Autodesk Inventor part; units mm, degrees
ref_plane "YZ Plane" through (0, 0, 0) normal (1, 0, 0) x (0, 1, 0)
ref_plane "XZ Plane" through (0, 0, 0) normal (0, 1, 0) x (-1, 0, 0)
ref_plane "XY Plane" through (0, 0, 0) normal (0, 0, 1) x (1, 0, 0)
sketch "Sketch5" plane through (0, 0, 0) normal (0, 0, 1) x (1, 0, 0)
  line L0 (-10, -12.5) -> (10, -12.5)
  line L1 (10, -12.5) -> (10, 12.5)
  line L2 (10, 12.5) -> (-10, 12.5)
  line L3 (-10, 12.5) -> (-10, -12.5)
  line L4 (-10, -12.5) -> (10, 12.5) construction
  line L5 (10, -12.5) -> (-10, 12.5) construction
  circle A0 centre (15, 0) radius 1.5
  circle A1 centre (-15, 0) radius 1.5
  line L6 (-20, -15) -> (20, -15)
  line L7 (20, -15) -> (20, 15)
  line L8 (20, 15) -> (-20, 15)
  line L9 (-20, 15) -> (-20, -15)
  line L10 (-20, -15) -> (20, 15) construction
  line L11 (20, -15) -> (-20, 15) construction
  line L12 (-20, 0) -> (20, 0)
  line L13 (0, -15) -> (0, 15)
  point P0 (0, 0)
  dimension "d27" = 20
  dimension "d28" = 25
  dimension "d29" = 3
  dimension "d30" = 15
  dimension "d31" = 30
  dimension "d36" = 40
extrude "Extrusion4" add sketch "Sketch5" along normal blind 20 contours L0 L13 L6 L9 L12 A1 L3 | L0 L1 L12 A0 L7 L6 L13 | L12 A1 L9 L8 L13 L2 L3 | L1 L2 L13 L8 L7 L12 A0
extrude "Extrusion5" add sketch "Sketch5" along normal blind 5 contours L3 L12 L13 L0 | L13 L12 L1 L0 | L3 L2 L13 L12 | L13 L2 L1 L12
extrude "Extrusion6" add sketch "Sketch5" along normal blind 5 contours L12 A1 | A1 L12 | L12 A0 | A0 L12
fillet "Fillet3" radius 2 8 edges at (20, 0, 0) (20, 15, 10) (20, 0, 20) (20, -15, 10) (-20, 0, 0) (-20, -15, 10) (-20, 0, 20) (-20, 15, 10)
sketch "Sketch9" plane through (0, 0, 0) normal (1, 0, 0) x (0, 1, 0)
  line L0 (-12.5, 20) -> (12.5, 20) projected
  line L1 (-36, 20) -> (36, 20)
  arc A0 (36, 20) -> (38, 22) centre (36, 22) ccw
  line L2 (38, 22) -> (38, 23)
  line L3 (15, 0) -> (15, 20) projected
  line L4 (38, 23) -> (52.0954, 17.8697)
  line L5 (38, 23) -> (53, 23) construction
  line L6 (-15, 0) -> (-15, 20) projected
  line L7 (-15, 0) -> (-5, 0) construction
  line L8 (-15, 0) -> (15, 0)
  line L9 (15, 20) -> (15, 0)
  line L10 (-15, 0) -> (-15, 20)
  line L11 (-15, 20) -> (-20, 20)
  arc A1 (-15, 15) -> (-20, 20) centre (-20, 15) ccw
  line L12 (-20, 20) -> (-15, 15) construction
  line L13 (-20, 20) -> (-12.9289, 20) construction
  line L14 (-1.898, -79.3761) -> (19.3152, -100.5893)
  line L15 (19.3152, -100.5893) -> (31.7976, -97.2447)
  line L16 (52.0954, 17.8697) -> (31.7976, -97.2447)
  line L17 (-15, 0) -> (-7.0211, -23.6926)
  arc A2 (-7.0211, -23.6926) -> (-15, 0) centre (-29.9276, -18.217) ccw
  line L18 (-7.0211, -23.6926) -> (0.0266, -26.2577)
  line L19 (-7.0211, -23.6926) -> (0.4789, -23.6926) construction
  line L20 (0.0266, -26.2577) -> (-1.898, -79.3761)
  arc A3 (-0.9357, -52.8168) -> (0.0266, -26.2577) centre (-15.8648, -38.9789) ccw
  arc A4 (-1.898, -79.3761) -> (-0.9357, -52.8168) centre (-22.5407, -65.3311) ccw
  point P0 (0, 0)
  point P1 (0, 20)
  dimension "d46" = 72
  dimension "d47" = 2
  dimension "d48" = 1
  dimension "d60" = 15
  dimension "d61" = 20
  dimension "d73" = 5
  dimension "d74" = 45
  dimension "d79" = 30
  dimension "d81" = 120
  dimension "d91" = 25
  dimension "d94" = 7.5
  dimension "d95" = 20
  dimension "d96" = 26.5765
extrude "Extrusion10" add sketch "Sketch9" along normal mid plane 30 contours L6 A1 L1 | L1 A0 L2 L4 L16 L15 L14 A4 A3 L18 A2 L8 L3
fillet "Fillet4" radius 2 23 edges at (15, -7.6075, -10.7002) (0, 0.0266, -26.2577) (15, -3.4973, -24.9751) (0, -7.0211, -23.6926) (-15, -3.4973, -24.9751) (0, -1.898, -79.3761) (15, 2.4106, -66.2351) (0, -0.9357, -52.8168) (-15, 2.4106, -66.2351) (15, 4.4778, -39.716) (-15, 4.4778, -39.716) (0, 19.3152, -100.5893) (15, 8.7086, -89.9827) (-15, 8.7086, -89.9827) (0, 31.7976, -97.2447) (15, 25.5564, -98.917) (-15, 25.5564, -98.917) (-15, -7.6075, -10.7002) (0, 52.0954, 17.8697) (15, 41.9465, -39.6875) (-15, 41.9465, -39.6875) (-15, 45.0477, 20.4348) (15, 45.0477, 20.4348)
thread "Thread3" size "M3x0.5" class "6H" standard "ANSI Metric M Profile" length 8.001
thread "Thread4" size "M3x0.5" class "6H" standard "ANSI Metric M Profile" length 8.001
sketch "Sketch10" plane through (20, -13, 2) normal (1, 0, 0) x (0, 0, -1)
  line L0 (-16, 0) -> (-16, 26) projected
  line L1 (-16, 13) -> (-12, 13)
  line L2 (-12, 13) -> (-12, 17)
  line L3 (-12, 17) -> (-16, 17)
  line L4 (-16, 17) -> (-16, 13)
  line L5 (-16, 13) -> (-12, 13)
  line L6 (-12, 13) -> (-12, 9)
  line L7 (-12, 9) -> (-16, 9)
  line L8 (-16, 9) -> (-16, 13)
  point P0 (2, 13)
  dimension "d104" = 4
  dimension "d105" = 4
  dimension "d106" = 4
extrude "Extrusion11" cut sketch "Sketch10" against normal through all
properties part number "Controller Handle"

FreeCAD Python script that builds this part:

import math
import FreeCAD as App
import Part
import Sketcher
from FreeCAD import Vector
Q = App.Units.Quantity


def edges_at(feature, points):
    """Names of the edges that pass closest to the given points."""
    edges = feature.Shape.Edges
    near = lambda p: min(range(len(edges)), key=lambda i: edges[i].distToShape(Part.Vertex(*p))[0])
    return sorted({f"Edge{near(p) + 1}" for p in points})

doc = App.newDocument("Part")
params = doc.addObject("Spreadsheet::Sheet", "Params")
for row, (alias, value) in enumerate([
    ("sketch1_diameter", "3 mm"),
    ("sketch1_width", "40 mm"),
    ("sketch1_width2", "20 mm"),
    ("sketch1_height", "30 mm"),
    ("sketch1_height2", "25 mm"),
    ("pad1_length", "20 mm"),
    ("sketch2_width", "20 mm"),
    ("sketch2_height", "25 mm"),
    ("pad2_length", "5 mm"),
    ("sketch3_diameter", "3 mm"),
    ("pad3_length", "5 mm"),
    ("fillet_radius", "2 mm"),
    ("sketch4_radius", "5 mm"),
    ("sketch4_radius2", "2 mm"),
    ("sketch4_width", "30 mm"),
    ("sketch4_height", "20 mm"),
    ("sketch4_height2", "1 mm"),
    ("pad4_length", "30 mm"),
    ("fillet2_radius", "2 mm"),
    ("sketch5_height", "4 mm"),
], start=1):
    params.set(f"A{row}", alias)
    params.set(f"B{row}", "=" + value)
    params.setAlias(f"B{row}", alias)

body = doc.addObject("PartDesign::Body", "Body")

# Sketch on XY plane
sketch1 = body.newObject("Sketcher::SketchObject", "Sketch")
sketch1.AttachmentSupport = (doc.getObject("XY_Plane"), [""])
sketch1.MapMode = "FlatFace"
sketch1.addGeometry(Part.LineSegment(Vector(-20, -15, 0), Vector(20, -15, 0)), False)
sketch1.addGeometry(Part.LineSegment(Vector(20, -15, 0), Vector(20, 15, 0)), False)
sketch1.addGeometry(Part.LineSegment(Vector(20, 15, 0), Vector(-20, 15, 0)), False)
sketch1.addGeometry(Part.LineSegment(Vector(-20, 15, 0), Vector(-20, -15, 0)), False)
sketch1.addGeometry(Part.LineSegment(Vector(-10, -12.5, 0), Vector(-10, 12.5, 0)), False)
sketch1.addGeometry(Part.LineSegment(Vector(-10, 12.5, 0), Vector(10, 12.5, 0)), False)
sketch1.addGeometry(Part.LineSegment(Vector(10, 12.5, 0), Vector(10, -12.5, 0)), False)
sketch1.addGeometry(Part.LineSegment(Vector(10, -12.5, 0), Vector(-10, -12.5, 0)), False)
sketch1.addGeometry(Part.Circle(Vector(-15, 0, 0), Vector(0, 0, 1), 1.5), False)
sketch1.addGeometry(Part.Circle(Vector(15, 0, 0), Vector(0, 0, 1), 1.5), False)
sketch1.addConstraint(Sketcher.Constraint("Coincident", 0, 2, 1, 1))
sketch1.addConstraint(Sketcher.Constraint("Coincident", 1, 2, 2, 1))
sketch1.addConstraint(Sketcher.Constraint("Coincident", 2, 2, 3, 1))
sketch1.addConstraint(Sketcher.Constraint("Coincident", 3, 2, 0, 1))
sketch1.addConstraint(Sketcher.Constraint("Coincident", 4, 2, 5, 1))
sketch1.addConstraint(Sketcher.Constraint("Coincident", 5, 2, 6, 1))
sketch1.addConstraint(Sketcher.Constraint("Coincident", 6, 2, 7, 1))
sketch1.addConstraint(Sketcher.Constraint("Coincident", 7, 2, 4, 1))
sketch1.addConstraint(Sketcher.Constraint("Horizontal", 0))
sketch1.addConstraint(Sketcher.Constraint("Vertical", 1))
sketch1.addConstraint(Sketcher.Constraint("Horizontal", 2))
sketch1.addConstraint(Sketcher.Constraint("Vertical", 3))
sketch1.addConstraint(Sketcher.Constraint("Vertical", 4))
sketch1.addConstraint(Sketcher.Constraint("Horizontal", 5))
sketch1.addConstraint(Sketcher.Constraint("Vertical", 6))
sketch1.addConstraint(Sketcher.Constraint("Horizontal", 7))
sketch1.addConstraint(Sketcher.Constraint("Equal", 8, 9))
sketch1.addConstraint(Sketcher.Constraint("Symmetric", 8, 3, 9, 3, -1, 1))
sketch1.addConstraint(Sketcher.Constraint("Symmetric", 0, 2, 2, 2, -1, 1))
sketch1.addConstraint(Sketcher.Constraint("Symmetric", 4, 2, 6, 2, -1, 1))
sketch1.addConstraint(Sketcher.Constraint("PointOnObject", 8, 3, -1))
sketch1.addConstraint(Sketcher.Constraint("Diameter", 8, Q("3 mm")))
sketch1.addConstraint(Sketcher.Constraint("DistanceX", 0, 1, 0, 2, Q("40 mm")))
sketch1.addConstraint(Sketcher.Constraint("DistanceX", 5, 1, 5, 2, Q("20 mm")))
sketch1.addConstraint(Sketcher.Constraint("DistanceY", 1, 1, 1, 2, Q("30 mm")))
sketch1.addConstraint(Sketcher.Constraint("DistanceY", 4, 1, 4, 2, Q("25 mm")))
sketch1.addConstraint(Sketcher.Constraint("DistanceX", 8, 3, -1, 1, Q("15 mm")))
sketch1.setExpression("Constraints[21]", "Params.sketch1_diameter")
sketch1.setExpression("Constraints[22]", "Params.sketch1_width")
sketch1.setExpression("Constraints[23]", "Params.sketch1_width2")
sketch1.setExpression("Constraints[24]", "Params.sketch1_height")
sketch1.setExpression("Constraints[25]", "Params.sketch1_height2")
pad1 = body.newObject("PartDesign::Pad", "Pad")
pad1.Profile = sketch1
pad1.setExpression("Length", "Params.pad1_length")

# Sketch on XY plane
sketch2 = body.newObject("Sketcher::SketchObject", "Sketch001")
sketch2.AttachmentSupport = (doc.getObject("XY_Plane"), [""])
sketch2.MapMode = "FlatFace"
sketch2.addGeometry(Part.LineSegment(Vector(-10, -12, 0), Vector(10, -12, 0)), False)
sketch2.addGeometry(Part.LineSegment(Vector(10, -12, 0), Vector(10, 12, 0)), False)
sketch2.addGeometry(Part.LineSegment(Vector(10, 12, 0), Vector(-10, 12, 0)), False)
sketch2.addGeometry(Part.LineSegment(Vector(-10, 12, 0), Vector(-10, -12, 0)), False)
sketch2.addConstraint(Sketcher.Constraint("Coincident", 0, 2, 1, 1))
sketch2.addConstraint(Sketcher.Constraint("Coincident", 1, 2, 2, 1))
sketch2.addConstraint(Sketcher.Constraint("Coincident", 2, 2, 3, 1))
sketch2.addConstraint(Sketcher.Constraint("Coincident", 3, 2, 0, 1))
sketch2.addConstraint(Sketcher.Constraint("Horizontal", 0))
sketch2.addConstraint(Sketcher.Constraint("Vertical", 1))
sketch2.addConstraint(Sketcher.Constraint("Horizontal", 2))
sketch2.addConstraint(Sketcher.Constraint("Vertical", 3))
sketch2.addConstraint(Sketcher.Constraint("Symmetric", 0, 2, 2, 2, -1, 1))
sketch2.addConstraint(Sketcher.Constraint("DistanceX", 0, 1, 0, 2, Q("20 mm")))
sketch2.addConstraint(Sketcher.Constraint("DistanceY", 1, 1, 1, 2, Q("25 mm")))
sketch2.setExpression("Constraints[9]", "Params.sketch2_width")
sketch2.setExpression("Constraints[10]", "Params.sketch2_height")
pad2 = body.newObject("PartDesign::Pad", "Pad001")
pad2.Profile = sketch2
pad2.setExpression("Length", "Params.pad2_length")

# Sketch on XY plane
sketch3 = body.newObject("Sketcher::SketchObject", "Sketch002")
sketch3.AttachmentSupport = (doc.getObject("XY_Plane"), [""])
sketch3.MapMode = "FlatFace"
sketch3.addGeometry(Part.Circle(Vector(-15, 0, 0), Vector(0, 0, 1), 1.5), False)
sketch3.addGeometry(Part.Circle(Vector(15, 0, 0), Vector(0, 0, 1), 1.5), False)
sketch3.addConstraint(Sketcher.Constraint("Equal", 0, 1))
sketch3.addConstraint(Sketcher.Constraint("Symmetric", 0, 3, 1, 3, -1, 1))
sketch3.addConstraint(Sketcher.Constraint("PointOnObject", 0, 3, -1))
sketch3.addConstraint(Sketcher.Constraint("Diameter", 0, Q("3 mm")))
sketch3.addConstraint(Sketcher.Constraint("DistanceX", 0, 3, -1, 1, Q("15 mm")))
sketch3.setExpression("Constraints[3]", "Params.sketch3_diameter")
pad3 = body.newObject("PartDesign::Pad", "Pad002")
pad3.Profile = sketch3
pad3.setExpression("Length", "Params.pad3_length")
doc.recompute()

fillet = body.newObject("PartDesign::Fillet", "Fillet")
fillet.Base = (pad3, edges_at(pad3, [
    (20, 0, 0),
    (20, 15, 10),
    (20, 0, 20),
    (20, -15, 10),
    (-20, 0, 0),
    (-20, -15, 10),
    (-20, 0, 20),
    (-20, 15, 10),
]))
fillet.setExpression("Radius", "Params.fillet_radius")

# Sketch on YZ plane
sketch4 = body.newObject("Sketcher::SketchObject", "Sketch003")
sketch4.AttachmentSupport = (doc.getObject("YZ_Plane"), [""])
sketch4.MapMode = "FlatFace"
sketch4.addGeometry(Part.LineSegment(Vector(-15, 15, 0), Vector(-15, 20, 0)), False)
sketch4.addGeometry(Part.LineSegment(Vector(-15, 20, 0), Vector(-20, 20, 0)), False)
sketch4.addGeometry(Part.ArcOfCircle(Part.Circle(Vector(-20, 15, 0), Vector(0, 0, 1), 5), math.radians(0), math.radians(90)), False)
sketch4.addGeometry(Part.LineSegment(Vector(36, 20, 0), Vector(15, 20, 0)), False)
sketch4.addGeometry(Part.LineSegment(Vector(15, 20, 0), Vector(15, 0, 0)), False)
sketch4.addGeometry(Part.LineSegment(Vector(15, 0, 0), Vector(-15, 0, 0)), False)
sketch4.addGeometry(Part.ArcOfCircle(Part.Circle(Vector(-29.9, -18.2, 0), Vector(0, 0, 1), 23.6), math.radians(-13), math.radians(51)), False)
sketch4.addGeometry(Part.LineSegment(Vector(-7, -23.7, 0), Vector(0, -26.3, 0)), False)
sketch4.addGeometry(Part.ArcOfCircle(Part.Circle(Vector(-15.9, -39, 0), Vector(0, 0, 1), 20.4), math.radians(-43), math.radians(39)), False)
sketch4.addGeometry(Part.ArcOfCircle(Part.Circle(Vector(-22.5, -65.3, 0), Vector(0, 0, 1), 25), math.radians(-34), math.radians(30)), False)
sketch4.addGeometry(Part.LineSegment(Vector(-1.9, -79.4, 0), Vector(19.3, -100.6, 0)), False)
sketch4.addGeometry(Part.LineSegment(Vector(19.3, -100.6, 0), Vector(31.8, -97.2, 0)), False)
sketch4.addGeometry(Part.LineSegment(Vector(31.8, -97.2, 0), Vector(52.1, 17.9, 0)), False)
sketch4.addGeometry(Part.LineSegment(Vector(52.1, 17.9, 0), Vector(38, 23, 0)), False)
sketch4.addGeometry(Part.LineSegment(Vector(38, 23, 0), Vector(38, 22, 0)), False)
sketch4.addGeometry(Part.ArcOfCircle(Part.Circle(Vector(36, 22, 0), Vector(0, 0, 1), 2), math.radians(-90), math.radians(0)), False)
sketch4.addConstraint(Sketcher.Constraint("Coincident", 0, 2, 1, 1))
sketch4.addConstraint(Sketcher.Constraint("Tangent", 1, 2, 2, 2))
sketch4.addConstraint(Sketcher.Constraint("Tangent", 2, 1, 0, 1))
sketch4.addConstraint(Sketcher.Constraint("Coincident", 3, 2, 4, 1))
sketch4.addConstraint(Sketcher.Constraint("Coincident", 4, 2, 5, 1))
sketch4.addConstraint(Sketcher.Constraint("Coincident", 5, 2, 6, 2))
sketch4.addConstraint(Sketcher.Constraint("Coincident", 6, 1, 7, 1))
sketch4.addConstraint(Sketcher.Constraint("Coincident", 7, 2, 8, 2))
sketch4.addConstraint(Sketcher.Constraint("Coincident", 8, 1, 9, 2))
sketch4.addConstraint(Sketcher.Constraint("Coincident", 9, 1, 10, 1))
sketch4.addConstraint(Sketcher.Constraint("Coincident", 10, 2, 11, 1))
sketch4.addConstraint(Sketcher.Constraint("Coincident", 11, 2, 12, 1))
sketch4.addConstraint(Sketcher.Constraint("Coincident", 12, 2, 13, 1))
sketch4.addConstraint(Sketcher.Constraint("Coincident", 13, 2, 14, 1))
sketch4.addConstraint(Sketcher.Constraint("Tangent", 14, 2, 15, 2))
sketch4.addConstraint(Sketcher.Constraint("Tangent", 15, 1, 3, 1))
sketch4.addConstraint(Sketcher.Constraint("Vertical", 0))
sketch4.addConstraint(Sketcher.Constraint("Horizontal", 1))
sketch4.addConstraint(Sketcher.Constraint("Horizontal", 3))
sketch4.addConstraint(Sketcher.Constraint("Vertical", 4))
sketch4.addConstraint(Sketcher.Constraint("Horizontal", 5))
sketch4.addConstraint(Sketcher.Constraint("Vertical", 14))
sketch4.addConstraint(Sketcher.Constraint("Symmetric", 4, 2, 5, 2, -1, 1))
sketch4.addConstraint(Sketcher.Constraint("Symmetric", 0, 2, 3, 2, -2))
sketch4.addConstraint(Sketcher.Constraint("Parallel", 7, 13))
sketch4.addConstraint(Sketcher.Constraint("Radius", 2, Q("5 mm")))
sketch4.addConstraint(Sketcher.Constraint("Radius", 15, Q("2 mm")))
sketch4.addConstraint(Sketcher.Constraint("DistanceX", 5, 2, 5, 1, Q("30 mm")))
sketch4.addConstraint(Sketcher.Constraint("DistanceY", 4, 2, 4, 1, Q("20 mm")))
sketch4.addConstraint(Sketcher.Constraint("DistanceY", 14, 2, 14, 1, Q("1 mm")))
sketch4.addConstraint(Sketcher.Constraint("Angle", 7, Q("-19.9996 deg")))
sketch4.addConstraint(Sketcher.Constraint("Angle", 10, Q("-45 deg")))
sketch4.addConstraint(Sketcher.Constraint("Angle", 11, Q("14.9998 deg")))
sketch4.addConstraint(Sketcher.Constraint("Distance", 10, Q("30 mm")))
sketch4.addConstraint(Sketcher.Constraint("Distance", 13, Q("15 mm")))
sketch4.addConstraint(Sketcher.Constraint("Distance", 7, Q("7.5 mm")))
sketch4.addConstraint(Sketcher.Constraint("DistanceX", 3, 2, 3, 1, Q("21 mm")))
sketch4.addConstraint(Sketcher.Constraint("Angle", 12, Q("80 deg")))
sketch4.addConstraint(Sketcher.Constraint("Radius", 8, Q("20.356 mm")))
sketch4.addConstraint(Sketcher.Constraint("Radius", 6, Q("23.5519 mm")))
sketch4.addConstraint(Sketcher.Constraint("Radius", 9, Q("24.9676 mm")))
sketch4.addConstraint(Sketcher.Constraint("DistanceX", 8, 3, 10, 2, Q("35.18 mm")))
sketch4.addConstraint(Sketcher.Constraint("DistanceY", 6, 3, -1, 1, Q("18.217 mm")))
sketch4.addConstraint(Sketcher.Constraint("DistanceY", 8, 3, -1, 1, Q("38.979 mm")))
sketch4.addConstraint(Sketcher.Constraint("DistanceY", 9, 3, -1, 1, Q("65.331 mm")))
sketch4.addConstraint(Sketcher.Constraint("DistanceX", 6, 1, -1, 1, Q("7.021 mm")))
sketch4.addConstraint(Sketcher.Constraint("DistanceY", 9, 1, -1, 1, Q("79.376 mm")))
sketch4.setExpression("Constraints[25]", "Params.sketch4_radius")
sketch4.setExpression("Constraints[26]", "Params.sketch4_radius2")
sketch4.setExpression("Constraints[27]", "Params.sketch4_width")
sketch4.setExpression("Constraints[28]", "Params.sketch4_height")
sketch4.setExpression("Constraints[29]", "Params.sketch4_height2")
pad4 = body.newObject("PartDesign::Pad", "Pad003")
pad4.Profile = sketch4
pad4.setExpression("Length", "Params.pad4_length")
pad4.Midplane = True
doc.recompute()

fillet2 = body.newObject("PartDesign::Fillet", "Fillet001")
fillet2.Base = (pad4, edges_at(pad4, [
    (15, -7.607, -10.7),
    (0, 0.027, -26.258),
    (15, -3.497, -24.975),
    (0, -7.021, -23.693),
    (-15, -3.497, -24.975),
    (0, -1.898, -79.376),
    (15, 2.411, -66.235),
    (0, -0.936, -52.817),
    (-15, 2.411, -66.235),
    (15, 4.478, -39.716),
    (-15, 4.478, -39.716),
    (0, 19.315, -100.589),
    (15, 8.709, -89.983),
    (-15, 8.709, -89.983),
    (0, 31.798, -97.245),
    (15, 25.556, -98.917),
    (-15, 25.556, -98.917),
    (-15, -7.607, -10.7),
    (0, 52.095, 17.87),
    (15, 41.947, -39.688),
    (-15, 41.947, -39.688),
    (-15, 45.048, 20.435),
    (15, 45.048, 20.435),
]))
fillet2.setExpression("Radius", "Params.fillet2_radius")

# Sketch on YZ plane
sketch5 = body.newObject("Sketcher::SketchObject", "Sketch004")
sketch5.AttachmentSupport = (doc.getObject("YZ_Plane"), [""])
sketch5.MapMode = "FlatFace"
sketch5.AttachmentOffset = App.Placement(Vector(0, 0, 20), App.Rotation())
sketch5.addGeometry(Part.LineSegment(Vector(-4, 18, 0), Vector(-4, 14, 0)), False)
sketch5.addGeometry(Part.LineSegment(Vector(-4, 14, 0), Vector(4, 14, 0)), False)
sketch5.addGeometry(Part.LineSegment(Vector(4, 14, 0), Vector(4, 18, 0)), False)
sketch5.addGeometry(Part.LineSegment(Vector(4, 18, 0), Vector(-4, 18, 0)), False)
sketch5.addConstraint(Sketcher.Constraint("Coincident", 0, 2, 1, 1))
sketch5.addConstraint(Sketcher.Constraint("Coincident", 1, 2, 2, 1))
sketch5.addConstraint(Sketcher.Constraint("Coincident", 2, 2, 3, 1))
sketch5.addConstraint(Sketcher.Constraint("Coincident", 3, 2, 0, 1))
sketch5.addConstraint(Sketcher.Constraint("Vertical", 0))
sketch5.addConstraint(Sketcher.Constraint("Horizontal", 1))
sketch5.addConstraint(Sketcher.Constraint("Vertical", 2))
sketch5.addConstraint(Sketcher.Constraint("Horizontal", 3))
sketch5.addConstraint(Sketcher.Constraint("DistanceY", 0, 2, 0, 1, Q("4 mm")))
sketch5.addConstraint(Sketcher.Constraint("DistanceX", 0, 2, -1, 1, Q("4 mm")))
sketch5.addConstraint(Sketcher.Constraint("DistanceX", -1, 1, 1, 2, Q("4 mm")))
sketch5.addConstraint(Sketcher.Constraint("DistanceY", -1, 1, 0, 2, Q("14 mm")))
sketch5.setExpression("Constraints[8]", "Params.sketch5_height")
pocket1 = body.newObject("PartDesign::Pocket", "Pocket")
pocket1.Profile = sketch5
pocket1.Type = "ThroughAll"

doc.recompute()
